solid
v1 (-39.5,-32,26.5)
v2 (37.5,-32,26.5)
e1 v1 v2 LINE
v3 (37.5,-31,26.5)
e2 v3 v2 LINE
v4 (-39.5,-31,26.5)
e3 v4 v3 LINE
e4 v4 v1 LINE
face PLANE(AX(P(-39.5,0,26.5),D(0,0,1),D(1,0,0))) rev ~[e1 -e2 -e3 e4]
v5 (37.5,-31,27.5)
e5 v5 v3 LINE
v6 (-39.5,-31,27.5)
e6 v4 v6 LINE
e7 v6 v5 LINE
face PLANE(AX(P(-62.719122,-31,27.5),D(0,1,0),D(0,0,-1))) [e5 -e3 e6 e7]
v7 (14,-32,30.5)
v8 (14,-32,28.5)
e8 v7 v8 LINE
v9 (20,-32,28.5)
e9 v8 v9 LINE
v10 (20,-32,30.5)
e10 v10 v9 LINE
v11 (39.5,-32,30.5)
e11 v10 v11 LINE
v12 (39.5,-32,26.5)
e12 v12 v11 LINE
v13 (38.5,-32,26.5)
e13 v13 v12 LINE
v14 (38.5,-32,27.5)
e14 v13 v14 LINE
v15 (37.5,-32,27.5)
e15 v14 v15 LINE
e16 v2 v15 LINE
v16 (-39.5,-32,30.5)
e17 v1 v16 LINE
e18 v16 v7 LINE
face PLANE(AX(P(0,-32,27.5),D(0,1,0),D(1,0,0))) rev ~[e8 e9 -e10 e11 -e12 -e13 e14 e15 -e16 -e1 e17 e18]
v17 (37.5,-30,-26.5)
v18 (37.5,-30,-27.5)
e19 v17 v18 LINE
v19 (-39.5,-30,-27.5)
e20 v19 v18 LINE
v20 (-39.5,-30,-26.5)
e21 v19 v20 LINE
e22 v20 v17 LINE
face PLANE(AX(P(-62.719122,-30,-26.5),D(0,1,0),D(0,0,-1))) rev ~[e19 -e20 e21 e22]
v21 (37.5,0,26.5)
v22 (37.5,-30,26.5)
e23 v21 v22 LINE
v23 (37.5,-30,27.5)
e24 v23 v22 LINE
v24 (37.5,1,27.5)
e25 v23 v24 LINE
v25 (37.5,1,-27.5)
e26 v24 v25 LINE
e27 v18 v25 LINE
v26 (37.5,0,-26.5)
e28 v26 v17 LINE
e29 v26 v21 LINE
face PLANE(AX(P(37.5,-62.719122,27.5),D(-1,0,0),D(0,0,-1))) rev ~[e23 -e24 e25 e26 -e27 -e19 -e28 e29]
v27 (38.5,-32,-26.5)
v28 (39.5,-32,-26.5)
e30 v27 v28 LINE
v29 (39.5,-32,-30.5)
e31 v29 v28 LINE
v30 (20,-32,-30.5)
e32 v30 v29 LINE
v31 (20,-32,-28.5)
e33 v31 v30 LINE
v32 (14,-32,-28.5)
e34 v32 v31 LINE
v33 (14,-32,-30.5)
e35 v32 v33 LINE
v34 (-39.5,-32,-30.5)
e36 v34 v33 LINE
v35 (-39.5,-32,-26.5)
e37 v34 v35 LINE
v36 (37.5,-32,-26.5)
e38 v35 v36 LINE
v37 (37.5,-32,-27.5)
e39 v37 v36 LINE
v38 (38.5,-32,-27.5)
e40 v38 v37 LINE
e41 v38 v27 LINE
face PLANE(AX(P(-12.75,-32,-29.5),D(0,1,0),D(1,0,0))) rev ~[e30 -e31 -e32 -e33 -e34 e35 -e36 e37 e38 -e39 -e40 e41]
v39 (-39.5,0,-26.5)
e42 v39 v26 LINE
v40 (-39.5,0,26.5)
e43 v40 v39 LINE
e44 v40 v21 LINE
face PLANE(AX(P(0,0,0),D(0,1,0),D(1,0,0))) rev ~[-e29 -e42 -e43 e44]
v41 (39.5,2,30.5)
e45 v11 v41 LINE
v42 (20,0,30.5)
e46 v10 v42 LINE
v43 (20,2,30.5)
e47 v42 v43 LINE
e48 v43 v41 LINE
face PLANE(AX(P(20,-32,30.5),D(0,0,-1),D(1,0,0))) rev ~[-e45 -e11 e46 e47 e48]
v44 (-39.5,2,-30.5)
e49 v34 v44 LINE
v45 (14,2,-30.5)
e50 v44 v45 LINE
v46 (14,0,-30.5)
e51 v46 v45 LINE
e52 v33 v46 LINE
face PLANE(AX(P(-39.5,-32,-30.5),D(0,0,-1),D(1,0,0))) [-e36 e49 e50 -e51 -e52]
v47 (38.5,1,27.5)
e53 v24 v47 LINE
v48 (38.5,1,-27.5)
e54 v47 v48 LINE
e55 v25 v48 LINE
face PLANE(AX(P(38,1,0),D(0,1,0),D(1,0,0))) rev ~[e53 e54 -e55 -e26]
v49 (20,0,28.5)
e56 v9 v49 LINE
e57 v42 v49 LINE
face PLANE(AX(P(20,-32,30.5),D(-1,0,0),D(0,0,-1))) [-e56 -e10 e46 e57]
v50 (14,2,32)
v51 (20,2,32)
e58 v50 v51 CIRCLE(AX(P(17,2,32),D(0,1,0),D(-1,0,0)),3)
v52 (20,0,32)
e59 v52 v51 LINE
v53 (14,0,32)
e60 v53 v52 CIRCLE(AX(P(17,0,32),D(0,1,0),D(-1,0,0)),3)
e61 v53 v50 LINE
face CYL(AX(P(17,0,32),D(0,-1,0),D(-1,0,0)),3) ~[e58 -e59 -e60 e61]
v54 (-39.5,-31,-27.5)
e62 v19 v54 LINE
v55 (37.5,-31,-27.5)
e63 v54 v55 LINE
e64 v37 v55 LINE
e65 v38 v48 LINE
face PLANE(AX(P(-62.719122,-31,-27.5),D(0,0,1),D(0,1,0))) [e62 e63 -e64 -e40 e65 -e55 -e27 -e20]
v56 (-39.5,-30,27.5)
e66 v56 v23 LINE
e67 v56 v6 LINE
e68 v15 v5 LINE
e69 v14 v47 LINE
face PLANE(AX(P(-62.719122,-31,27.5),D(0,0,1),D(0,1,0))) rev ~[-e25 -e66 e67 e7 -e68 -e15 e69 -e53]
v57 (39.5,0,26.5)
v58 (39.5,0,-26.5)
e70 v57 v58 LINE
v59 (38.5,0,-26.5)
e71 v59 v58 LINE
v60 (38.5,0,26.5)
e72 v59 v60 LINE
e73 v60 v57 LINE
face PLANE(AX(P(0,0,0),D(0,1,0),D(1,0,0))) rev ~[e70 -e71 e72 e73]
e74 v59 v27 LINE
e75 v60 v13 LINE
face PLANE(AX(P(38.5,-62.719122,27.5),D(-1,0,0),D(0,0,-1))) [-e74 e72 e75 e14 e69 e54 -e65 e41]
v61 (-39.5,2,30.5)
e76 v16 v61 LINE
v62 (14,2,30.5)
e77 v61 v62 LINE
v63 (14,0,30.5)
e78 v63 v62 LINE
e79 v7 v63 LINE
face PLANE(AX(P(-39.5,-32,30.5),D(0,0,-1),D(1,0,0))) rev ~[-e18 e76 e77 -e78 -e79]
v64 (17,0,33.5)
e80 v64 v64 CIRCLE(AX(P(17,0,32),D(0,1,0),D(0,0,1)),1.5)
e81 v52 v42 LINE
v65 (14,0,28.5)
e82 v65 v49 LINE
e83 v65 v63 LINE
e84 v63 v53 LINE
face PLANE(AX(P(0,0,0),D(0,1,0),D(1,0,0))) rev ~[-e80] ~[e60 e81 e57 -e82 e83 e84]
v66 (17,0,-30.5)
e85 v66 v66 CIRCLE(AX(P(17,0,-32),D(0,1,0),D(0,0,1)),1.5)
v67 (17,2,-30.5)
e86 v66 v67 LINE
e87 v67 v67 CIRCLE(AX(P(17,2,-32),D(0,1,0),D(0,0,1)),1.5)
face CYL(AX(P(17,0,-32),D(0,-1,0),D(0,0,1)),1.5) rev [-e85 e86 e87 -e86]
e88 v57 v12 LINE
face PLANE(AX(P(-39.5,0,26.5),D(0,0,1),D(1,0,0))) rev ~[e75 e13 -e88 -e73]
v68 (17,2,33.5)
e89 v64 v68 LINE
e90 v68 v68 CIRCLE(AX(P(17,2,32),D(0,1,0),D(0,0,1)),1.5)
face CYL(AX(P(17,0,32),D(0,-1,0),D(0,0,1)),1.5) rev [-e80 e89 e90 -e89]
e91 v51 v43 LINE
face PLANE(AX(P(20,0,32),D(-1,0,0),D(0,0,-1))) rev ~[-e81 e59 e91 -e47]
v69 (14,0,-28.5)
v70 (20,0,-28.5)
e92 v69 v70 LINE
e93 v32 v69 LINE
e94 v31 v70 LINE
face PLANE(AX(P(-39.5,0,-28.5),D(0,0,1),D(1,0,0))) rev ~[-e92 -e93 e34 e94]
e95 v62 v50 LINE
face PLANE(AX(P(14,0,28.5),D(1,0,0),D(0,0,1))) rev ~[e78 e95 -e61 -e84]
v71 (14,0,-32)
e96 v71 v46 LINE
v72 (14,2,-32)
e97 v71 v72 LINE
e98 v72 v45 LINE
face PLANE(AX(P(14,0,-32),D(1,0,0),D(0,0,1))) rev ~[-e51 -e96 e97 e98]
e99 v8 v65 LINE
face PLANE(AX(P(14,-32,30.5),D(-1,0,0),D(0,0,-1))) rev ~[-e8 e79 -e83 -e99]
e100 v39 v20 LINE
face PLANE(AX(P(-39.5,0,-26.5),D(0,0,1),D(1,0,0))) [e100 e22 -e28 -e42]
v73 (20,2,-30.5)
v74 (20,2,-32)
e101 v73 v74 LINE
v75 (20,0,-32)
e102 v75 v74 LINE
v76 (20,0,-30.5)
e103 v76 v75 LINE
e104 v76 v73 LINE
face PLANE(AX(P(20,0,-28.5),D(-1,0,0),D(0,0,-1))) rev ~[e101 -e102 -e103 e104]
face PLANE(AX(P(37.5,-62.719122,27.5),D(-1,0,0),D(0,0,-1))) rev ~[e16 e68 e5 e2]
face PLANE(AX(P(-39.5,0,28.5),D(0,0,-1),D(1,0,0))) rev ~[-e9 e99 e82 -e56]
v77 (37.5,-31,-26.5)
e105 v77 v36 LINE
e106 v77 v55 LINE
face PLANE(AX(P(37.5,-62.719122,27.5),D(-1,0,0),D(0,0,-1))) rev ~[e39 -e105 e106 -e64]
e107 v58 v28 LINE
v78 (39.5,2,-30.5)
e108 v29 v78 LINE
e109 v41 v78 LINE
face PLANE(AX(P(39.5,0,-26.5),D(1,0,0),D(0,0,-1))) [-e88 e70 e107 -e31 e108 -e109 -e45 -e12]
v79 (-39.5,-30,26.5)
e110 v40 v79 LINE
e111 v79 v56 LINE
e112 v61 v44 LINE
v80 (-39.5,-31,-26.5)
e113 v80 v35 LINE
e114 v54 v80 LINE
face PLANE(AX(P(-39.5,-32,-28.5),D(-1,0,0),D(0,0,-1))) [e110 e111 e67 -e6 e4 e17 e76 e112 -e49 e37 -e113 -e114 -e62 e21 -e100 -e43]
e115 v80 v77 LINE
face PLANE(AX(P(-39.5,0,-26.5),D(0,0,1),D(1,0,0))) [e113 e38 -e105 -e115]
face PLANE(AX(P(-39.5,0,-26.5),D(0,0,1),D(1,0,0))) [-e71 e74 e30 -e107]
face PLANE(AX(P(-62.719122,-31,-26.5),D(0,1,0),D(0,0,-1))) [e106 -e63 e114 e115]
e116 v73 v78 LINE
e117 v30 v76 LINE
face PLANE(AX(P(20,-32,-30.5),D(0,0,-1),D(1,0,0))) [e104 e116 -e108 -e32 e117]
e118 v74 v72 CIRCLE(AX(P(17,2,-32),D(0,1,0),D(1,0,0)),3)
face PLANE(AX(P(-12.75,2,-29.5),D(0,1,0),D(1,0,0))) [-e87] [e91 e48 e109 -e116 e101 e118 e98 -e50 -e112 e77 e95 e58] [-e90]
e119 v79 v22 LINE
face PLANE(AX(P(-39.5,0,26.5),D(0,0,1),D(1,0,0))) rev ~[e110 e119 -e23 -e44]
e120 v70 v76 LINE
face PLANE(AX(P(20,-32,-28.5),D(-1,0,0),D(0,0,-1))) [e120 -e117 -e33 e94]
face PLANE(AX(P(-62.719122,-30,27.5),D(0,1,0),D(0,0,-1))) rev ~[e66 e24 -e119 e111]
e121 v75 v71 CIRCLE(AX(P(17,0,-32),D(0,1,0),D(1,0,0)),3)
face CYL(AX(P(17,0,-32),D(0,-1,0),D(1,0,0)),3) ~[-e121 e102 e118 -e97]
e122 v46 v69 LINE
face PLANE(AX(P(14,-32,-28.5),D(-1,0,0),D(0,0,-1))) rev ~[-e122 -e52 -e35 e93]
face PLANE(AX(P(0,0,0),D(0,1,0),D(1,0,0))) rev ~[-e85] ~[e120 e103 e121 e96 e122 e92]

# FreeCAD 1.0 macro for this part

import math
import FreeCAD as App
import Part
import Sketcher

V = App.Vector
Q = App.Units.Quantity


def add_polygon(sketch, points):
    """Adds a closed chain of lines whose ends are joined by coincident constraints."""
    first, n = sketch.GeometryCount, len(points)
    for a, b in zip(points, points[1:] + points[:1]):
        sketch.addGeometry(Part.LineSegment(App.Vector(*a, 0), App.Vector(*b, 0)), False)
    for i in range(n):
        sketch.addConstraint(Sketcher.Constraint("Coincident", first + i, 2, first + (i + 1) % n, 1))

doc = App.newDocument("Part")
body = doc.addObject("PartDesign::Body", "Body")

# Sketch on XZ plane
sketch1 = doc.addObject("Sketcher::SketchObject", "Sketch")
body.addObject(sketch1)
sketch1.AttachmentSupport = (doc.XZ_Plane, [""])
sketch1.MapMode = "FlatFace"
sketch1.addGeometry(Part.LineSegment(V(-39.5, -28.5, 0), V(-39.5, 28.5, 0)), False)
sketch1.addGeometry(Part.LineSegment(V(-39.5, 28.5, 0), V(14, 28.5, 0)), False)
sketch1.addGeometry(Part.LineSegment(V(14, 28.5, 0), V(14, 32, 0)), False)
sketch1.addGeometry(Part.ArcOfCircle(Part.Circle(V(17, 32, 0), V(0, 0, 1), 3), math.radians(0), math.radians(180)), False)
sketch1.addGeometry(Part.LineSegment(V(20, 32, 0), V(20, 28.5, 0)), False)
sketch1.addGeometry(Part.LineSegment(V(20, 28.5, 0), V(39.5, 28.5, 0)), False)
sketch1.addGeometry(Part.LineSegment(V(39.5, 28.5, 0), V(39.5, -28.5, 0)), False)
sketch1.addGeometry(Part.LineSegment(V(39.5, -28.5, 0), V(20, -28.5, 0)), False)
sketch1.addGeometry(Part.LineSegment(V(20, -28.5, 0), V(20, -32, 0)), False)
sketch1.addGeometry(Part.ArcOfCircle(Part.Circle(V(17, -32, 0), V(0, 0, 1), 3), math.radians(180), math.radians(360)), False)
sketch1.addGeometry(Part.LineSegment(V(14, -32, 0), V(14, -28.5, 0)), False)
sketch1.addGeometry(Part.LineSegment(V(14, -28.5, 0), V(-39.5, -28.5, 0)), False)
sketch1.addGeometry(Part.Circle(V(17, 32, 0), V(0, 0, 1), 1.5), False)
sketch1.addGeometry(Part.Circle(V(17, -32, 0), V(0, 0, 1), 1.5), False)
sketch1.addConstraint(Sketcher.Constraint("Coincident", 0, 2, 1, 1))
sketch1.addConstraint(Sketcher.Constraint("Coincident", 1, 2, 2, 1))
sketch1.addConstraint(Sketcher.Constraint("Tangent", 2, 2, 3, 2))
sketch1.addConstraint(Sketcher.Constraint("Tangent", 3, 1, 4, 1))
sketch1.addConstraint(Sketcher.Constraint("Coincident", 4, 2, 5, 1))
sketch1.addConstraint(Sketcher.Constraint("Coincident", 5, 2, 6, 1))
sketch1.addConstraint(Sketcher.Constraint("Coincident", 6, 2, 7, 1))
sketch1.addConstraint(Sketcher.Constraint("Coincident", 7, 2, 8, 1))
sketch1.addConstraint(Sketcher.Constraint("Tangent", 8, 2, 9, 2))
sketch1.addConstraint(Sketcher.Constraint("Tangent", 9, 1, 10, 1))
sketch1.addConstraint(Sketcher.Constraint("Coincident", 10, 2, 11, 1))
sketch1.addConstraint(Sketcher.Constraint("Coincident", 11, 2, 0, 1))
sketch1.addConstraint(Sketcher.Constraint("Vertical", 0))
sketch1.addConstraint(Sketcher.Constraint("Horizontal", 1))
sketch1.addConstraint(Sketcher.Constraint("Vertical", 2))
sketch1.addConstraint(Sketcher.Constraint("Vertical", 4))
sketch1.addConstraint(Sketcher.Constraint("Horizontal", 5))
sketch1.addConstraint(Sketcher.Constraint("Vertical", 6))
sketch1.addConstraint(Sketcher.Constraint("Horizontal", 7))
sketch1.addConstraint(Sketcher.Constraint("Vertical", 8))
sketch1.addConstraint(Sketcher.Constraint("Vertical", 10))
sketch1.addConstraint(Sketcher.Constraint("Horizontal", 11))
sketch1.addConstraint(Sketcher.Constraint("Coincident", 12, 3, 3, 3))
sketch1.addConstraint(Sketcher.Constraint("Coincident", 13, 3, 9, 3))
sketch1.addConstraint(Sketcher.Constraint("Equal", 3, 9))
sketch1.addConstraint(Sketcher.Constraint("Equal", 12, 13))
sketch1.addConstraint(Sketcher.Constraint("Symmetric", 0, 2, 6, 2, -1, 1))
sketch1.addConstraint(Sketcher.Constraint("Symmetric", 3, 3, 9, 3, -1))
sketch1.addConstraint(Sketcher.Constraint("Horizontal", 1, 2, 4, 2))
sketch1.addConstraint(Sketcher.Constraint("Horizontal", 7, 2, 10, 2))
sketch1.addConstraint(Sketcher.Constraint("Diameter", 12, Q("3 mm")))
sketch1.addConstraint(Sketcher.Constraint("Radius", 3, Q("3 mm")))
sketch1.addConstraint(Sketcher.Constraint("DistanceY", 0, 1, 0, 2, Q("57 mm")))
sketch1.addConstraint(Sketcher.Constraint("DistanceX", 1, 1, 1, 2, Q("53.5 mm")))
sketch1.addConstraint(Sketcher.Constraint("DistanceX", 5, 1, 5, 2, Q("19.5 mm")))
sketch1.addConstraint(Sketcher.Constraint("DistanceY", 2, 1, 2, 2, Q("3.5 mm")))
pad1 = doc.addObject("PartDesign::Pad", "Pad")
body.addObject(pad1)
pad1.Profile = sketch1
pad1.Length = 2
pad1.Reversed = True

# Sketch on XZ plane
sketch2 = doc.addObject("Sketcher::SketchObject", "Sketch001")
body.addObject(sketch2)
sketch2.AttachmentSupport = (doc.XZ_Plane, [""])
sketch2.MapMode = "FlatFace"
add_polygon(sketch2, [(-39.5, -28.5), (-39.5, -26.5), (39.5, -26.5), (39.5, -28.5)])  # lines 0-3
add_polygon(sketch2, [(-39.5, 26.5), (-39.5, 28.5), (39.5, 28.5), (39.5, 26.5)])  # lines 4-7
sketch2.addConstraint(Sketcher.Constraint("Vertical", 0))
sketch2.addConstraint(Sketcher.Constraint("Horizontal", 1))
sketch2.addConstraint(Sketcher.Constraint("Vertical", 2))
sketch2.addConstraint(Sketcher.Constraint("Horizontal", 3))
sketch2.addConstraint(Sketcher.Constraint("Vertical", 4))
sketch2.addConstraint(Sketcher.Constraint("Horizontal", 5))
sketch2.addConstraint(Sketcher.Constraint("Vertical", 6))
sketch2.addConstraint(Sketcher.Constraint("Horizontal", 7))
sketch2.addConstraint(Sketcher.Constraint("Symmetric", 2, 2, 4, 2, -1, 1))
sketch2.addConstraint(Sketcher.Constraint("Symmetric", 0, 2, 6, 2, -1, 1))
sketch2.addConstraint(Sketcher.Constraint("Vertical", 3, 2, 4, 2))
sketch2.addConstraint(Sketcher.Constraint("DistanceX", 1, 1, 1, 2, Q("79 mm")))
sketch2.addConstraint(Sketcher.Constraint("DistanceY", 0, 1, 0, 2, Q("2 mm")))
sketch2.addConstraint(Sketcher.Constraint("DistanceY", 0, 2, 4, 2, Q("55 mm")))
pad2 = doc.addObject("PartDesign::Pad", "Pad001")
body.addObject(pad2)
pad2.Profile = sketch2
pad2.Length = 32

# Sketch on XZ plane
sketch3 = doc.addObject("Sketcher::SketchObject", "Sketch002")
body.addObject(sketch3)
sketch3.AttachmentSupport = (doc.XZ_Plane, [""])
sketch3.MapMode = "FlatFace"
add_polygon(sketch3, [(37.5, -27.5), (37.5, 27.5), (38.5, 27.5), (38.5, -27.5)])  # lines 0-3
sketch3.addConstraint(Sketcher.Constraint("Vertical", 0))
sketch3.addConstraint(Sketcher.Constraint("Horizontal", 1))
sketch3.addConstraint(Sketcher.Constraint("Vertical", 2))
sketch3.addConstraint(Sketcher.Constraint("Horizontal", 3))
sketch3.addConstraint(Sketcher.Constraint("DistanceX", 1, 1, 1, 2, Q("1 mm")))
sketch3.addConstraint(Sketcher.Constraint("DistanceY", 0, 1, 0, 2, Q("55 mm")))
sketch3.addConstraint(Sketcher.Constraint("DistanceX", -1, 1, 0, 2, Q("37.5 mm")))
sketch3.addConstraint(Sketcher.Constraint("DistanceY", -1, 1, 0, 2, Q("27.5 mm")))
pocket1 = doc.addObject("PartDesign::Pocket", "Pocket")
body.addObject(pocket1)
pocket1.Profile = sketch3
pocket1.Type = "TwoLengths"
pocket1.Length = 1
pocket1.Length2 = 62.719122

# Sketch on YZ plane
sketch4 = doc.addObject("Sketcher::SketchObject", "Sketch003")
body.addObject(sketch4)
sketch4.AttachmentSupport = (doc.YZ_Plane, [""])
sketch4.MapMode = "FlatFace"
add_polygon(sketch4, [(-30, 27.5), (-31, 27.5), (-31, 26.5), (-30, 26.5)])  # lines 0-3
add_polygon(sketch4, [(-30, -26.5), (-31, -26.5), (-31, -27.5), (-30, -27.5)])  # lines 4-7
sketch4.addConstraint(Sketcher.Constraint("Horizontal", 0))
sketch4.addConstraint(Sketcher.Constraint("Vertical", 1))
sketch4.addConstraint(Sketcher.Constraint("Horizontal", 2))
sketch4.addConstraint(Sketcher.Constraint("Vertical", 3))
sketch4.addConstraint(Sketcher.Constraint("Horizontal", 4))
sketch4.addConstraint(Sketcher.Constraint("Vertical", 5))
sketch4.addConstraint(Sketcher.Constraint("Horizontal", 6))
sketch4.addConstraint(Sketcher.Constraint("Vertical", 7))
sketch4.addConstraint(Sketcher.Constraint("Symmetric", 1, 2, 4, 2, -1))
sketch4.addConstraint(Sketcher.Constraint("Symmetric", 3, 2, 6, 2, -1))
sketch4.addConstraint(Sketcher.Constraint("Equal", 6, 1))
sketch4.addConstraint(Sketcher.Constraint("DistanceX", 0, 2, 0, 1, Q("1 mm")))
sketch4.addConstraint(Sketcher.Constraint("DistanceX", 0, 2, -1, 1, Q("31 mm")))
sketch4.addConstraint(Sketcher.Constraint("DistanceY", 4, 2, 1, 2, Q("53 mm")))
pocket2 = doc.addObject("PartDesign::Pocket", "Pocket001")
body.addObject(pocket2)
pocket2.Profile = sketch4
pocket2.Type = "TwoLengths"
pocket2.Length = 37.5
pocket2.Length2 = 62.719122
pocket2.Reversed = True

# Sketch on XZ plane
sketch5 = doc.addObject("Sketcher::SketchObject", "Sketch004")
body.addObject(sketch5)
sketch5.AttachmentSupport = (doc.XZ_Plane, [""])
sketch5.MapMode = "FlatFace"
add_polygon(sketch5, [(-39.5, -30.5), (-39.5, -28.5), (14, -28.5), (14, -30.5)])  # lines 0-3
add_polygon(sketch5, [(-39.5, 28.5), (-39.5, 30.5), (14, 30.5), (14, 28.5)])  # lines 4-7
add_polygon(sketch5, [(20, -30.5), (20, -28.5), (39.5, -28.5), (39.5, -30.5)])  # lines 8-11
add_polygon(sketch5, [(20, 28.5), (20, 30.5), (39.5, 30.5), (39.5, 28.5)])  # lines 12-15
sketch5.addConstraint(Sketcher.Constraint("Vertical", 0))
sketch5.addConstraint(Sketcher.Constraint("Horizontal", 1))
sketch5.addConstraint(Sketcher.Constraint("Vertical", 2))
sketch5.addConstraint(Sketcher.Constraint("Horizontal", 3))
sketch5.addConstraint(Sketcher.Constraint("Vertical", 4))
sketch5.addConstraint(Sketcher.Constraint("Horizontal", 5))
sketch5.addConstraint(Sketcher.Constraint("Vertical", 6))
sketch5.addConstraint(Sketcher.Constraint("Horizontal", 7))
sketch5.addConstraint(Sketcher.Constraint("Vertical", 8))
sketch5.addConstraint(Sketcher.Constraint("Horizontal", 9))
sketch5.addConstraint(Sketcher.Constraint("Vertical", 10))
sketch5.addConstraint(Sketcher.Constraint("Horizontal", 11))
sketch5.addConstraint(Sketcher.Constraint("Vertical", 12))
sketch5.addConstraint(Sketcher.Constraint("Horizontal", 13))
sketch5.addConstraint(Sketcher.Constraint("Vertical", 14))
sketch5.addConstraint(Sketcher.Constraint("Horizontal", 15))
sketch5.addConstraint(Sketcher.Constraint("Symmetric", 7, 2, 9, 2, -1, 1))
sketch5.addConstraint(Sketcher.Constraint("Symmetric", 3, 2, 13, 2, -1, 1))
sketch5.addConstraint(Sketcher.Constraint("Symmetric", 0, 2, 9, 2, -2))
sketch5.addConstraint(Sketcher.Constraint("Symmetric", 2, 2, 5, 2, -1))
sketch5.addConstraint(Sketcher.Constraint("Symmetric", 11, 2, 12, 2, -1))
sketch5.addConstraint(Sketcher.Constraint("Horizontal", 7, 2, 14, 2))
sketch5.addConstraint(Sketcher.Constraint("DistanceY", 0, 1, 0, 2, Q("2 mm")))
sketch5.addConstraint(Sketcher.Constraint("DistanceX", 1, 1, 1, 2, Q("53.5 mm")))
sketch5.addConstraint(Sketcher.Constraint("DistanceX", 9, 1, 9, 2, Q("19.5 mm")))
sketch5.addConstraint(Sketcher.Constraint("DistanceX", -1, 1, 1, 2, Q("14 mm")))
sketch5.addConstraint(Sketcher.Constraint("DistanceY", 0, 2, 4, 2, Q("59 mm")))
pad3 = doc.addObject("PartDesign::Pad", "Pad002")
body.addObject(pad3)
pad3.Profile = sketch5
pad3.Type = "TwoLengths"
pad3.Length = 2
pad3.Length2 = 32
pad3.Reversed = True

doc.recompute()
